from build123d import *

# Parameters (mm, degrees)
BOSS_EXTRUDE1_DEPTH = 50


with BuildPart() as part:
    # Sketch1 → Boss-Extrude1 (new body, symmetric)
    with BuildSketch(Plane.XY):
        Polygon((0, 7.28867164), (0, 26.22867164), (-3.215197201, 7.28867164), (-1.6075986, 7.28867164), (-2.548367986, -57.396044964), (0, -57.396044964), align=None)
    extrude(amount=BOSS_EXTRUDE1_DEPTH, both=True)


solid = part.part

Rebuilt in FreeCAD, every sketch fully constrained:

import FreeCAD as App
import Part
import Sketcher

V = App.Vector


def add_polygon(sketch, points):
    """Adds a closed chain of lines whose ends are joined by coincident constraints."""
    first, n = sketch.GeometryCount, len(points)
    for a, b in zip(points, points[1:] + points[:1]):
        sketch.addGeometry(Part.LineSegment(App.Vector(*a, 0), App.Vector(*b, 0)), False)
    for i in range(n):
        sketch.addConstraint(Sketcher.Constraint("Coincident", first + i, 2, first + (i + 1) % n, 1))

doc = App.newDocument("Part")
params = doc.addObject("Spreadsheet::Sheet", "Params")
for row, (alias, value) in enumerate([
    ("pad1_length", "100 mm"),
], start=1):
    params.set(f"A{row}", alias)
    params.set(f"B{row}", "=" + value)
    params.setAlias(f"B{row}", alias)

body = doc.addObject("PartDesign::Body", "Body")

sketch1 = doc.addObject("Sketcher::SketchObject", "Sketch")
body.addObject(sketch1)
sketch1.AttachmentSupport = (doc.XY_Plane, [""])
sketch1.MapMode = "FlatFace"
add_polygon(sketch1, [(0, 26.2), (-3.2, 7.3), (-1.6, 7.3), (-2.5, -57.4), (0, -57.4)])
sketch1.addConstraint(Sketcher.Constraint("Horizontal", 1))
sketch1.addConstraint(Sketcher.Constraint("Horizontal", 3))
sketch1.addConstraint(Sketcher.Constraint("Vertical", 4))
sketch1.addConstraint(Sketcher.Constraint("PointOnObject", 3, 2, -2))
sketch1.addConstraint(Sketcher.Constraint("DistanceY", 1, 2, 4, 2, 18.94))
sketch1.addConstraint(Sketcher.Constraint("DistanceX", 1, 1, 1, 2, 1.607599))
sketch1.addConstraint(Sketcher.Constraint("DistanceX", 1, 2, -1, 1, 1.607599))
sketch1.addConstraint(Sketcher.Constraint("DistanceX", 3, 1, 3, 2, 2.548368))
sketch1.addConstraint(Sketcher.Constraint("DistanceY", 4, 1, 4, 2, 83.624717))
sketch1.addConstraint(Sketcher.Constraint("DistanceY", -1, 1, 0, 2, 7.288672))
pad1 = doc.addObject("PartDesign::Pad", "Pad")
body.addObject(pad1)
pad1.Profile = sketch1
pad1.setExpression("Length", "Params.pad1_length")
pad1.Midplane = True

doc.recompute()
